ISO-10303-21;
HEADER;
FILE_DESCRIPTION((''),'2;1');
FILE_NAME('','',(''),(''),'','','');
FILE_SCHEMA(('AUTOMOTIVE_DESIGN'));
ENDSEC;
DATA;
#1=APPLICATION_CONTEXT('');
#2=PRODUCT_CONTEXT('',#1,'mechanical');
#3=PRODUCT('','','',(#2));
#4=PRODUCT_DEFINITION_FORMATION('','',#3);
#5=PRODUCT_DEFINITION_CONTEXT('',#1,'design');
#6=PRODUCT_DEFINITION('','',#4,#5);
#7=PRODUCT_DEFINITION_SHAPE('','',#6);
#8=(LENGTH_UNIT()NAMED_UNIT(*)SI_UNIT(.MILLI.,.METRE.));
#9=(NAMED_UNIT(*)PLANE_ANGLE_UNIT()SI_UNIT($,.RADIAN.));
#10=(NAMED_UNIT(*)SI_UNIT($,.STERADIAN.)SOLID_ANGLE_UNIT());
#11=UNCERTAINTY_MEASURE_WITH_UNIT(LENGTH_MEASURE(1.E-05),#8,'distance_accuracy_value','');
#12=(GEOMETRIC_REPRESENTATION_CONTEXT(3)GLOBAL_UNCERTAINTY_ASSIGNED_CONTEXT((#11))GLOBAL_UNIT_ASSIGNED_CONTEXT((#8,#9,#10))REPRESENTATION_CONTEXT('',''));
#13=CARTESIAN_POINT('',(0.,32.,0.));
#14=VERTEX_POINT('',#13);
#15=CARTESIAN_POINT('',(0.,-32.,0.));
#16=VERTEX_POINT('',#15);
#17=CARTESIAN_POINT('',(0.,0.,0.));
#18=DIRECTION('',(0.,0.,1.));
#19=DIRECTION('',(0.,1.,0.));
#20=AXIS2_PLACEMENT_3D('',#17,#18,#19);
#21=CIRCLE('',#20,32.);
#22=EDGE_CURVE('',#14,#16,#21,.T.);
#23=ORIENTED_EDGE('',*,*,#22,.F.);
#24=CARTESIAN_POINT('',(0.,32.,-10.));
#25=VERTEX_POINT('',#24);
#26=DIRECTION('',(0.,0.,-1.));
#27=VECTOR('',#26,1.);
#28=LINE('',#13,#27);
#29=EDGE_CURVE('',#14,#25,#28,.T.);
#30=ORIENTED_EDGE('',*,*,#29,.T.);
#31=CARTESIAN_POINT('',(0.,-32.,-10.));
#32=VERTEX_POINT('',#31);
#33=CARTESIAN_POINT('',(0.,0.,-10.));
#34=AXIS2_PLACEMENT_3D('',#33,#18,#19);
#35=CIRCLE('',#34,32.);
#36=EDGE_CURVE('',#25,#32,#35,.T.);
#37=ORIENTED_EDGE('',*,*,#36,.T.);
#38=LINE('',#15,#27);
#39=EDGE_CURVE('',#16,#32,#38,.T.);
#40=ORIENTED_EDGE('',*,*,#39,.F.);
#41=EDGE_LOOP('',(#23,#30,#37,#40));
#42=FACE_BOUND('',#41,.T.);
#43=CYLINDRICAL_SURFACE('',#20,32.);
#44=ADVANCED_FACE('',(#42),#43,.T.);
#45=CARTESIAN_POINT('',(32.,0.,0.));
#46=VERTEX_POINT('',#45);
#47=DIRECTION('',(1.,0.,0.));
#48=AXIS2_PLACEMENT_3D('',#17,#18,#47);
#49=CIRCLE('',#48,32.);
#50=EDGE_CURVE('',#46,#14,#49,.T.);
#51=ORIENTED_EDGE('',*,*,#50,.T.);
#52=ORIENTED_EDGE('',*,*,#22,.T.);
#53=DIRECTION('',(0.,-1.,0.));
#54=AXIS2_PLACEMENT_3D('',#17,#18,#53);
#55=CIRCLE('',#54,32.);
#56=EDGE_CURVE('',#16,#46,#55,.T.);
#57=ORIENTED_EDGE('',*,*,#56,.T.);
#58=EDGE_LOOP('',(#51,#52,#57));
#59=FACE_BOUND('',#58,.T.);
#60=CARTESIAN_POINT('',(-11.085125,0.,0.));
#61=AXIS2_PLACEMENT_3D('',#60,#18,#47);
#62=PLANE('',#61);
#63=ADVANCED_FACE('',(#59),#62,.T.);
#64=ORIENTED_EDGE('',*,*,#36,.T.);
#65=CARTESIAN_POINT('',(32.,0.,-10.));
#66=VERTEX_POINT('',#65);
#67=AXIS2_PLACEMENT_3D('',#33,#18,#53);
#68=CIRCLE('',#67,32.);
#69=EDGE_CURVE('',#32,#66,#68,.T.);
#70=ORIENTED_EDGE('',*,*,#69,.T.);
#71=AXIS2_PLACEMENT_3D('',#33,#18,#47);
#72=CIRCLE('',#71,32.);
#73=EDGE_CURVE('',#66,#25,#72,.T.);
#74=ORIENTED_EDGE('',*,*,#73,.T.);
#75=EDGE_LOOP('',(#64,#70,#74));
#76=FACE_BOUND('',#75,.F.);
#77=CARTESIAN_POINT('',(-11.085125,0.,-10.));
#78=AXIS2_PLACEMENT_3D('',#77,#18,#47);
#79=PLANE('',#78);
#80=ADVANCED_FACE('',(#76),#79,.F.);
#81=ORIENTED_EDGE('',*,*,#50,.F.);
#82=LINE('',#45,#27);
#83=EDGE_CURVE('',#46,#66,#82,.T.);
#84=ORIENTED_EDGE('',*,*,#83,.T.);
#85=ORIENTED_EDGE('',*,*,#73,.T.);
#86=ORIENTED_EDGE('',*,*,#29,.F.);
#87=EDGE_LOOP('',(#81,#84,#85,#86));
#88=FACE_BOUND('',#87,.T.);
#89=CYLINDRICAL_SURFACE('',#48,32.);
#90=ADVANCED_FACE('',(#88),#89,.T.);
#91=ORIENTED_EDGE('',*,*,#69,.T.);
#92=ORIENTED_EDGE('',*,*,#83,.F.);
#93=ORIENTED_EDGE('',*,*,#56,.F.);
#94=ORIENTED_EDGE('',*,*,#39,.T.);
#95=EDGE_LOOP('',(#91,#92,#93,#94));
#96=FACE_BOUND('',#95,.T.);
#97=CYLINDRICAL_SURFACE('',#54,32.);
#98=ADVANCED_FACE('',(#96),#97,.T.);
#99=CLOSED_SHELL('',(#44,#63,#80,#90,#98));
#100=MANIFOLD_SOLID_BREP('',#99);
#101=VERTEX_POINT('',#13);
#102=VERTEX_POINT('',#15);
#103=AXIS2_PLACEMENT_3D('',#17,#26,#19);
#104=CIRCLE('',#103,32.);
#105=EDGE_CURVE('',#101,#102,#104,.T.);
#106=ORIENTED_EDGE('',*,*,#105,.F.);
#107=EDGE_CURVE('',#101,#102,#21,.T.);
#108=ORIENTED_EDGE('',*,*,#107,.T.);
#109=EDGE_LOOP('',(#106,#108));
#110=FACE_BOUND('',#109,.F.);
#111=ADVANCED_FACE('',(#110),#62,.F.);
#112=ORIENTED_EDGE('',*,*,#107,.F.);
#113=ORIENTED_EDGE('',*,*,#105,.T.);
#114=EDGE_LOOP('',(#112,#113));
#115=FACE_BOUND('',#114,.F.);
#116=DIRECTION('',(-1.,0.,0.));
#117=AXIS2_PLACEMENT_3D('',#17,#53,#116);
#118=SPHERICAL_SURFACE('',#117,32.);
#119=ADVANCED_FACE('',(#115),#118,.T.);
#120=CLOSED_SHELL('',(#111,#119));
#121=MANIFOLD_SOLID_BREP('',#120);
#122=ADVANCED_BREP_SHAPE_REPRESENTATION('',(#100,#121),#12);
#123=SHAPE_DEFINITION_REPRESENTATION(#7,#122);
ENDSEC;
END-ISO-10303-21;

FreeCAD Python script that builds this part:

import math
import FreeCAD as App
import Part
import Sketcher

V = App.Vector
Q = App.Units.Quantity

doc = App.newDocument("Part")
params = doc.addObject("Spreadsheet::Sheet", "Params")
for row, (alias, value) in enumerate([
    ("sketch1_radius", "32 mm"),
    ("pad1_length", "10 mm"),
    ("sketch2_radius", "32 mm"),
    ("revolution_angle", "180 deg"),
], start=1):
    params.set(f"A{row}", alias)
    params.set(f"B{row}", "=" + value)
    params.setAlias(f"B{row}", alias)

body = doc.addObject("PartDesign::Body", "Body")

sketch1 = doc.addObject("Sketcher::SketchObject", "Sketch")
body.addObject(sketch1)
sketch1.AttachmentSupport = (doc.XY_Plane, [""])
sketch1.MapMode = "FlatFace"
sketch1.addGeometry([
    Part.ArcOfCircle(Part.Circle(V(0, 0, 0), V(0, 0, 1), 32), math.radians(90), math.radians(270)),
    Part.ArcOfCircle(Part.Circle(V(0, 0, 0), V(0, 0, 1), 32), math.radians(-90), math.radians(0)),
    Part.ArcOfCircle(Part.Circle(V(0, 0, 0), V(0, 0, 1), 32), math.radians(0), math.radians(90)),
], False)
sketch1.addConstraint([
    Sketcher.Constraint("Tangent", 0, 2, 1, 1),
    Sketcher.Constraint("Tangent", 1, 2, 2, 1),
    Sketcher.Constraint("Tangent", 2, 2, 0, 1),
    Sketcher.Constraint("Coincident", 0, 3, -1, 1),
    Sketcher.Constraint("PointOnObject", 0, 2, -2),
    Sketcher.Constraint("PointOnObject", 1, 2, -1),
    Sketcher.Constraint("PointOnObject", 2, 2, -2),
    Sketcher.Constraint("Radius", 0, Q("32 mm")),
])
sketch1.setExpression("Constraints[7]", "Params.sketch1_radius")
pad1 = doc.addObject("PartDesign::Pad", "Pad")
body.addObject(pad1)
pad1.Profile = sketch1
pad1.setExpression("Length", "Params.pad1_length")
pad1.Reversed = True
body2 = doc.addObject("PartDesign::Body", "Body001")

sketch2 = doc.addObject("Sketcher::SketchObject", "Sketch001")
body2.addObject(sketch2)
sketch2.AttachmentSupport = (doc.getObject("XY_Plane001"), [""])
sketch2.MapMode = "FlatFace"
sketch2.addGeometry([
    Part.LineSegment(V(0, -32, 0), V(0, 32, 0)),
    Part.ArcOfCircle(Part.Circle(V(0, 0, 0), V(0, 0, 1), 32), math.radians(90), math.radians(270)),
], False)
sketch2.addConstraint([
    Sketcher.Constraint("Coincident", 0, 1, 1, 2),
    Sketcher.Constraint("Coincident", 1, 1, 0, 2),
    Sketcher.Constraint("Vertical", 0),
    Sketcher.Constraint("Coincident", 1, 3, -1, 1),
    Sketcher.Constraint("PointOnObject", 0, 1, -2),
    Sketcher.Constraint("Radius", 1, Q("32 mm")),
])
sketch2.setExpression("Constraints[5]", "Params.sketch2_radius")
revolution = doc.addObject("PartDesign::Revolution", "Revolution")
body2.addObject(revolution)
revolution.Profile = sketch2
revolution.ReferenceAxis = (sketch2, ["V_Axis"])
revolution.setExpression("Angle", "Params.revolution_angle")

doc.recompute()
